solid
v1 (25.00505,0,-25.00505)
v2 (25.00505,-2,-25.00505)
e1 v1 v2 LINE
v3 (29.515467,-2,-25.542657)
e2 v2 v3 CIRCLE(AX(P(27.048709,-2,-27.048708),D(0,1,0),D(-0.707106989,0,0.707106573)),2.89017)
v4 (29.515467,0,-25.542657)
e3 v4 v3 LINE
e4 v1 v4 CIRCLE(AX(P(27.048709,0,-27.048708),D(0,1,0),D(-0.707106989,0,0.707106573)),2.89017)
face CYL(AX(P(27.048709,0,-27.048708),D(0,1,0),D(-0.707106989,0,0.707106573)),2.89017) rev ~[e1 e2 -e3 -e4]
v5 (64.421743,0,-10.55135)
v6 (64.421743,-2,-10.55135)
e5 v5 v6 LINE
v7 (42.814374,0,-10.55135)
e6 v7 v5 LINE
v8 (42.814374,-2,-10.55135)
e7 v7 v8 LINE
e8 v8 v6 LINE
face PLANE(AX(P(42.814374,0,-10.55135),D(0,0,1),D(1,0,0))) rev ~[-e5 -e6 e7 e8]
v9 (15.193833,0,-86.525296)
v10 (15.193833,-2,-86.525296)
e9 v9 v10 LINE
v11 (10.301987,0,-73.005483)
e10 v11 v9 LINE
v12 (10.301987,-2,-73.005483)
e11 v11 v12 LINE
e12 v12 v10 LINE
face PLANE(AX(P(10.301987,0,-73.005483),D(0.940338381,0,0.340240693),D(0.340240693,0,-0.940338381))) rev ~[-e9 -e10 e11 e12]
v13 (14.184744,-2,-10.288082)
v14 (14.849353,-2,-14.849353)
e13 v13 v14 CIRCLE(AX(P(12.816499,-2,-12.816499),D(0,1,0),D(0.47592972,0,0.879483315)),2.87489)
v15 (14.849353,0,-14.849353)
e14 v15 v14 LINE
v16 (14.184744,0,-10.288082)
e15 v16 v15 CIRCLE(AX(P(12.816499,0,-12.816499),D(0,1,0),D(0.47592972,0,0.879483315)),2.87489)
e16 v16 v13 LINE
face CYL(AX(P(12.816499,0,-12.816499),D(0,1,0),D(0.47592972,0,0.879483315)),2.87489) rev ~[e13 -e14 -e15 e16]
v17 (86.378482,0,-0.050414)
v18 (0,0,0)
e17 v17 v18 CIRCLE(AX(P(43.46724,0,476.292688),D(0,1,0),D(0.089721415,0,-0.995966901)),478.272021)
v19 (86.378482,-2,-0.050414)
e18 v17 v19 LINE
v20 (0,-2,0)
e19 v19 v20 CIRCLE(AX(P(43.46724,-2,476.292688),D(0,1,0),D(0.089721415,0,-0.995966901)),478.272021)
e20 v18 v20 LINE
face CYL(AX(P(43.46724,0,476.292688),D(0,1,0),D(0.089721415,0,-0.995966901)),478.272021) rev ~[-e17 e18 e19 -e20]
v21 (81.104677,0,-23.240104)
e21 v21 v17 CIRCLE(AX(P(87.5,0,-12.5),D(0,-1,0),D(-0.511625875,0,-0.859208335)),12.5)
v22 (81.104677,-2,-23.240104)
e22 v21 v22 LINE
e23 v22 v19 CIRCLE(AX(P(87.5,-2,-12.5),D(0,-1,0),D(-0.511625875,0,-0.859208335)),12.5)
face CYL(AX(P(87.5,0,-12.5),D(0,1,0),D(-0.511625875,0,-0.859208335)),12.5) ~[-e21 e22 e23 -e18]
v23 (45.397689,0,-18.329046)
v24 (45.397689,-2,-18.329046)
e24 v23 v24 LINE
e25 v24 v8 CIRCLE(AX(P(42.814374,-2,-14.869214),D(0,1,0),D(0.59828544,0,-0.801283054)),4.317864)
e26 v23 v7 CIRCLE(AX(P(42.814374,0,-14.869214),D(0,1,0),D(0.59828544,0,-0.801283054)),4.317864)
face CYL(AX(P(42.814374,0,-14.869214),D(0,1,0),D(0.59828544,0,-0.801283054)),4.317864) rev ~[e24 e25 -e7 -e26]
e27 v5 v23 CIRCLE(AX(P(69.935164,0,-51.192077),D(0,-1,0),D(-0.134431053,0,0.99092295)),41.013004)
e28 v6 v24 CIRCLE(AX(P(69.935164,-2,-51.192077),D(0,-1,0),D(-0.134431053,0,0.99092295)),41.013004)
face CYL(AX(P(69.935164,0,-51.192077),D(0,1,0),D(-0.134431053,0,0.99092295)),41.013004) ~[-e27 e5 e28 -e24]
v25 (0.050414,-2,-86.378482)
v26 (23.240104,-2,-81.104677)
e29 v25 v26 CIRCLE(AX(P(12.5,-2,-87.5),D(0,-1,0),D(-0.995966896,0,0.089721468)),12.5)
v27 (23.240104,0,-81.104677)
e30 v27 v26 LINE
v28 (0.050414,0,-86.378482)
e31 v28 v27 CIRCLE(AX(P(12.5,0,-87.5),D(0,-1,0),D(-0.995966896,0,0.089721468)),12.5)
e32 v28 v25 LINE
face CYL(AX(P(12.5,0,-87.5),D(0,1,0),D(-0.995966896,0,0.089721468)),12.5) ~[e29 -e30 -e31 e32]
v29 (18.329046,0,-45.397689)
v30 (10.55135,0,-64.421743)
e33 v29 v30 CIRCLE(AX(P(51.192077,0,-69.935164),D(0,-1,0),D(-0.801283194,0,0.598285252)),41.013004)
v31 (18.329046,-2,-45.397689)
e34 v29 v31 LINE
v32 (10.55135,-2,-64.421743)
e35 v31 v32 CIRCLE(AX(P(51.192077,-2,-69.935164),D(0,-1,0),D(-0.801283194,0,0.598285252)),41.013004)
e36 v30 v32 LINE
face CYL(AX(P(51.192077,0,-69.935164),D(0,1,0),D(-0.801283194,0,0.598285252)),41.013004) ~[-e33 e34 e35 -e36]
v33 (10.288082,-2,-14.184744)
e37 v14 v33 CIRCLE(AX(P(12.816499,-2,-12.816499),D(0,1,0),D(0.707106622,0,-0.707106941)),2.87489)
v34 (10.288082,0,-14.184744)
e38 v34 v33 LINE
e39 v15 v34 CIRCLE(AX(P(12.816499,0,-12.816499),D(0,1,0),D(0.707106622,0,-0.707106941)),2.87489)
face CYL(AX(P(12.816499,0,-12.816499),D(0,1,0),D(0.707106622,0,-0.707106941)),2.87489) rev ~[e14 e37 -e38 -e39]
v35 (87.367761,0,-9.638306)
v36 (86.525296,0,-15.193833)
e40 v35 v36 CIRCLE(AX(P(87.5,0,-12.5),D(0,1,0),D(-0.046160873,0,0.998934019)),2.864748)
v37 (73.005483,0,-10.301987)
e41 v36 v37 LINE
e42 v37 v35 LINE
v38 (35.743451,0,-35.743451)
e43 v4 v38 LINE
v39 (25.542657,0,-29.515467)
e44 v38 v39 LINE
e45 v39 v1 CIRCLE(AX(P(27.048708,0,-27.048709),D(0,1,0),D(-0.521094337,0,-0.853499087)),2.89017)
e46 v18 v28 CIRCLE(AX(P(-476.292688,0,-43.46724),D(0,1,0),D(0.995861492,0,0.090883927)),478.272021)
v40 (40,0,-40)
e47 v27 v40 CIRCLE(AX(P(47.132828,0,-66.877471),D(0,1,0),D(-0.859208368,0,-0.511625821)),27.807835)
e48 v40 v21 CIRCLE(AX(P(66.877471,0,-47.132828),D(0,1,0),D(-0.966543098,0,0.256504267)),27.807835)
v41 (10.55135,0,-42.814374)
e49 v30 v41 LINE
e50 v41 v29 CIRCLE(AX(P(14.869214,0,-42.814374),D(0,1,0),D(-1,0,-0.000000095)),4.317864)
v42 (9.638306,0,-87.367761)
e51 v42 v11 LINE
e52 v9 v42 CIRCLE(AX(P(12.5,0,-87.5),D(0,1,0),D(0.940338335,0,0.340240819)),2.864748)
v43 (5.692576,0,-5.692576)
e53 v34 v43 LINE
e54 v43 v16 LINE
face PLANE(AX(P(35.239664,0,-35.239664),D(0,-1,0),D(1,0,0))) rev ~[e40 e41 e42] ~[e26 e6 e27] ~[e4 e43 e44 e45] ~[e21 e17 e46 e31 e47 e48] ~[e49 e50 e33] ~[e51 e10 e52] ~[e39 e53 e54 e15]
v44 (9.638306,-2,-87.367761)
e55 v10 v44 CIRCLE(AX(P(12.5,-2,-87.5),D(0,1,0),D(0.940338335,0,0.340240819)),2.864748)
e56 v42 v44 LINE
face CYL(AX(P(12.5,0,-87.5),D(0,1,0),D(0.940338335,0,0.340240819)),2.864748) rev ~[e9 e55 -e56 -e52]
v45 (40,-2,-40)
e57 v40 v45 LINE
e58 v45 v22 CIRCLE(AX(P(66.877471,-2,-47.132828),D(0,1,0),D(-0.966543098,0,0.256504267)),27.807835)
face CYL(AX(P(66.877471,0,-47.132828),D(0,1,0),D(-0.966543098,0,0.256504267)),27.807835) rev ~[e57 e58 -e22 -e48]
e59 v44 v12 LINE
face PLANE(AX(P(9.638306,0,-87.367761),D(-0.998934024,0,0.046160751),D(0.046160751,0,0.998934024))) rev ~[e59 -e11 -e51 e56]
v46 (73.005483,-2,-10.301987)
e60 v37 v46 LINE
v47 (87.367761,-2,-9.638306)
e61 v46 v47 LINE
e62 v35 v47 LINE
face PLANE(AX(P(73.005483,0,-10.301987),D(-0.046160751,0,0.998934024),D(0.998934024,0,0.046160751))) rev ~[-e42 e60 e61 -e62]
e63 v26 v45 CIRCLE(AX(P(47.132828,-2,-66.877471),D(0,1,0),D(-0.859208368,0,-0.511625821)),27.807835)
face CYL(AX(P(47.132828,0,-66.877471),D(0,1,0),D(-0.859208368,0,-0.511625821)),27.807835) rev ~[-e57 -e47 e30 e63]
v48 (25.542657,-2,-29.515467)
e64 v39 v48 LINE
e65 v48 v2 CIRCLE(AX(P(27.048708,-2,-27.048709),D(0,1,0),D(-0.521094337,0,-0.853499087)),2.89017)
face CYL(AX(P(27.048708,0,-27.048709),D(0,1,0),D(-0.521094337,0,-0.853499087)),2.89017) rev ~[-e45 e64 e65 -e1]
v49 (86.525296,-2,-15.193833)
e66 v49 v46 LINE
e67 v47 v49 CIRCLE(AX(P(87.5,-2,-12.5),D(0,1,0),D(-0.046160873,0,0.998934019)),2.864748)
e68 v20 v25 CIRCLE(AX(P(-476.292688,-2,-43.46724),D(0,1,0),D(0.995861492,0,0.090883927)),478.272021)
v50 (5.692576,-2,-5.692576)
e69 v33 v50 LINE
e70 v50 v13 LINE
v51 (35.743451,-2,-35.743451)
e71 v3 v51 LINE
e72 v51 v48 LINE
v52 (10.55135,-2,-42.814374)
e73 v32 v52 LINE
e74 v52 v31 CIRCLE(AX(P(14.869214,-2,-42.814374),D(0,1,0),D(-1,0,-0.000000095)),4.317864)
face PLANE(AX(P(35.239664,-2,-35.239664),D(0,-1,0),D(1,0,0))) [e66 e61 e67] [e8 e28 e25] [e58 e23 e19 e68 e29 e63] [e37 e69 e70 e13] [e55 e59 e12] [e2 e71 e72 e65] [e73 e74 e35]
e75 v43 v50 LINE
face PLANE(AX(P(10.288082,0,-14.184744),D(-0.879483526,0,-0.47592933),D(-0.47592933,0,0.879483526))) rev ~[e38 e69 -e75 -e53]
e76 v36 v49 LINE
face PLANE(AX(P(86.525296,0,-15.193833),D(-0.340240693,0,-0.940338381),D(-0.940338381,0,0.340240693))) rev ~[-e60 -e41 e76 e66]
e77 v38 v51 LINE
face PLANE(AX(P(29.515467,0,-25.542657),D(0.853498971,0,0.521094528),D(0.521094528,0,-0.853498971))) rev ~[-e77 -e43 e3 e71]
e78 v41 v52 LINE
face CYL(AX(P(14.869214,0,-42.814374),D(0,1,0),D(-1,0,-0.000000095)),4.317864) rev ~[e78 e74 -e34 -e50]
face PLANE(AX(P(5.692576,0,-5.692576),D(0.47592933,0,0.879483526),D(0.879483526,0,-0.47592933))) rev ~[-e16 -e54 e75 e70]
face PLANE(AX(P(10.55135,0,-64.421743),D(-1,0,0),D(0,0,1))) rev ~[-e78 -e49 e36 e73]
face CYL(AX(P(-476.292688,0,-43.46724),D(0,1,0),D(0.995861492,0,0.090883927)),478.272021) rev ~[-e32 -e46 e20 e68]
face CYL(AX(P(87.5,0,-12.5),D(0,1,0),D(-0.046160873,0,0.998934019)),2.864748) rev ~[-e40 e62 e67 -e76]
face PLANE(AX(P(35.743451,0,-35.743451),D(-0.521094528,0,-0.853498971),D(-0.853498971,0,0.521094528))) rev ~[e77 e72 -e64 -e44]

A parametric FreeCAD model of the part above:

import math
import FreeCAD as App
import Part
import Sketcher

V = App.Vector

doc = App.newDocument("Part")
body = doc.addObject("PartDesign::Body", "Body")

# Sketch on XZ plane
sketch1 = doc.addObject("Sketcher::SketchObject", "Sketch")
body.addObject(sketch1)
sketch1.AttachmentSupport = (doc.XZ_Plane, [""])
sketch1.MapMode = "FlatFace"
sketch1.addGeometry(Part.ArcOfCircle(Part.Circle(V(-476.292688, -43.46724, 0), V(0, 0, 1), 478.272021), math.radians(-5.147581), math.radians(5.214461)), False)
sketch1.addGeometry(Part.ArcOfCircle(Part.Circle(V(12.5, -87.5, 0), V(0, 0, 1), 12.5), math.radians(174.852416), math.radians(390.772189)), False)
sketch1.addGeometry(Part.ArcOfCircle(Part.Circle(V(47.132828, -66.877471, 0), V(0, 0, 1), 27.807835), math.radians(104.862738), math.radians(210.772186)), False)
sketch1.addGeometry(Part.ArcOfCircle(Part.Circle(V(66.877471, -47.132828, 0), V(0, 0, 1), 27.807835), math.radians(59.227814), math.radians(165.137262)), False)
sketch1.addGeometry(Part.ArcOfCircle(Part.Circle(V(87.5, -12.5, 0), V(0, 0, 1), 12.5), math.radians(-120.772189), math.radians(95.147584)), False)
sketch1.addGeometry(Part.ArcOfCircle(Part.Circle(V(43.46724, 476.292688, 0), V(0, 0, 1), 478.272021), math.radians(-95.214461), math.radians(-84.852419)), False)
sketch1.addGeometry(Part.LineSegment(V(10.301987, -73.005483, 0), V(15.193833, -86.525296, 0)), False)
sketch1.addGeometry(Part.ArcOfCircle(Part.Circle(V(12.5, -87.5, 0), V(0, 0, 1), 2.864748), math.radians(177.354237), math.radians(379.891547)), False)
sketch1.addGeometry(Part.LineSegment(V(9.638306, -87.367761, 0), V(10.301987, -73.005483, 0)), False)
sketch1.addGeometry(Part.LineSegment(V(10.55135, -64.421743, 0), V(10.55135, -42.814374, 0)), False)
sketch1.addGeometry(Part.ArcOfCircle(Part.Circle(V(14.869214, -42.814374, 0), V(0, 0, 1), 4.317864), math.radians(-36.7472), math.radians(180.000005)), False)
sketch1.addGeometry(Part.ArcOfCircle(Part.Circle(V(51.192077, -69.935164, 0), V(0, 0, 1), 41.013004), math.radians(143.252814), math.radians(172.274278)), False)
sketch1.addGeometry(Part.LineSegment(V(35.743451, -35.743451, 0), V(25.542657, -29.515467, 0)), False)
sketch1.addGeometry(Part.ArcOfCircle(Part.Circle(V(27.048708, -27.048709, 0), V(0, 0, 1), 2.89017), math.radians(134.999983), math.radians(238.594314)), False)
sketch1.addGeometry(Part.ArcOfCircle(Part.Circle(V(27.048709, -27.048708, 0), V(0, 0, 1), 2.89017), math.radians(31.405686), math.radians(135.000017)), False)
sketch1.addGeometry(Part.LineSegment(V(29.515467, -25.542657, 0), V(35.743451, -35.743451, 0)), False)
sketch1.addGeometry(Part.ArcOfCircle(Part.Circle(V(12.816499, -12.816499, 0), V(0, 0, 1), 2.87489), math.radians(-44.999987), math.radians(61.580099)), False)
sketch1.addGeometry(Part.ArcOfCircle(Part.Circle(V(12.816499, -12.816499, 0), V(0, 0, 1), 2.87489), math.radians(-151.580099), math.radians(-45.000013)), False)
sketch1.addGeometry(Part.LineSegment(V(10.288082, -14.184744, 0), V(5.692576, -5.692576, 0)), False)
sketch1.addGeometry(Part.LineSegment(V(5.692576, -5.692576, 0), V(14.184744, -10.288082, 0)), False)
sketch1.addGeometry(Part.LineSegment(V(42.814374, -10.55135, 0), V(64.421743, -10.55135, 0)), False)
sketch1.addGeometry(Part.ArcOfCircle(Part.Circle(V(69.935164, -51.192077, 0), V(0, 0, 1), 41.013004), math.radians(97.725722), math.radians(126.747186)), False)
sketch1.addGeometry(Part.ArcOfCircle(Part.Circle(V(42.814374, -14.869214, 0), V(0, 0, 1), 4.317864), math.radians(89.999995), math.radians(306.7472)), False)
sketch1.addGeometry(Part.ArcOfCircle(Part.Circle(V(87.5, -12.5, 0), V(0, 0, 1), 2.864748), math.radians(-109.891547), math.radians(92.645763)), False)
sketch1.addGeometry(Part.LineSegment(V(86.525296, -15.193833, 0), V(73.005483, -10.301987, 0)), False)
sketch1.addGeometry(Part.LineSegment(V(73.005483, -10.301987, 0), V(87.367761, -9.638306, 0)), False)
sketch1.addConstraint(Sketcher.Constraint("Coincident", 0, 1, 1, 1))
sketch1.addConstraint(Sketcher.Constraint("Coincident", 1, 2, 2, 2))
sketch1.addConstraint(Sketcher.Constraint("Coincident", 2, 1, 3, 2))
sketch1.addConstraint(Sketcher.Constraint("Coincident", 3, 1, 4, 1))
sketch1.addConstraint(Sketcher.Constraint("Coincident", 4, 2, 5, 2))
sketch1.addConstraint(Sketcher.Constraint("Coincident", 5, 1, 0, 2))
sketch1.addConstraint(Sketcher.Constraint("Coincident", 6, 2, 7, 2))
sketch1.addConstraint(Sketcher.Constraint("Coincident", 7, 1, 8, 1))
sketch1.addConstraint(Sketcher.Constraint("Coincident", 8, 2, 6, 1))
sketch1.addConstraint(Sketcher.Constraint("Coincident", 9, 2, 10, 2))
sketch1.addConstraint(Sketcher.Constraint("Coincident", 10, 1, 11, 1))
sketch1.addConstraint(Sketcher.Constraint("Coincident", 11, 2, 9, 1))
sketch1.addConstraint(Sketcher.Constraint("Coincident", 12, 2, 13, 2))
sketch1.addConstraint(Sketcher.Constraint("Coincident", 13, 1, 14, 2))
sketch1.addConstraint(Sketcher.Constraint("Coincident", 14, 1, 15, 1))
sketch1.addConstraint(Sketcher.Constraint("Coincident", 15, 2, 12, 1))
sketch1.addConstraint(Sketcher.Constraint("Coincident", 16, 1, 17, 2))
sketch1.addConstraint(Sketcher.Constraint("Coincident", 17, 1, 18, 1))
sketch1.addConstraint(Sketcher.Constraint("Coincident", 18, 2, 19, 1))
sketch1.addConstraint(Sketcher.Constraint("Coincident", 19, 2, 16, 2))
sketch1.addConstraint(Sketcher.Constraint("Coincident", 20, 2, 21, 1))
sketch1.addConstraint(Sketcher.Constraint("Coincident", 21, 2, 22, 2))
sketch1.addConstraint(Sketcher.Constraint("Coincident", 22, 1, 20, 1))
sketch1.addConstraint(Sketcher.Constraint("Coincident", 23, 1, 24, 1))
sketch1.addConstraint(Sketcher.Constraint("Coincident", 24, 2, 25, 1))
sketch1.addConstraint(Sketcher.Constraint("Coincident", 25, 2, 23, 2))
sketch1.addConstraint(Sketcher.Constraint("Vertical", 9))
sketch1.addConstraint(Sketcher.Constraint("Horizontal", 20))
sketch1.addConstraint(Sketcher.Constraint("Coincident", 5, 1, -1, 1))
sketch1.addConstraint(Sketcher.Constraint("Coincident", 7, 3, 1, 3))
sketch1.addConstraint(Sketcher.Constraint("Coincident", 14, 3, 13, 3))
sketch1.addConstraint(Sketcher.Constraint("Coincident", 17, 3, 16, 3))
sketch1.addConstraint(Sketcher.Constraint("Coincident", 23, 3, 4, 3))
sketch1.addConstraint(Sketcher.Constraint("Radius", 1, 12.5))
sketch1.addConstraint(Sketcher.Constraint("Radius", 4, 12.5))
sketch1.addConstraint(Sketcher.Constraint("DistanceX", -1, 1, 2, 1, 40.0))
sketch1.addConstraint(Sketcher.Constraint("DistanceY", 2, 1, -1, 1, 40.0))
sketch1.addConstraint(Sketcher.Constraint("DistanceX", 1, 3, 4, 3, 75.0))
sketch1.addConstraint(Sketcher.Constraint("DistanceY", 1, 3, 4, 3, 75.0))
sketch1.addConstraint(Sketcher.Constraint("DistanceX", -1, 1, 1, 3, 12.5))
sketch1.addConstraint(Sketcher.Constraint("DistanceY", 1, 3, -1, 1, 87.5))
sketch1.addConstraint(Sketcher.Constraint("Radius", 0, 478.272021))
sketch1.addConstraint(Sketcher.Constraint("Radius", 5, 478.272021))
sketch1.addConstraint(Sketcher.Constraint("Radius", 7, 2.864748))
sketch1.addConstraint(Sketcher.Constraint("Radius", 13, 2.89017))
sketch1.addConstraint(Sketcher.Constraint("Radius", 16, 2.87489))
sketch1.addConstraint(Sketcher.Constraint("Radius", 23, 2.864748))
sketch1.addConstraint(Sketcher.Constraint("Radius", 2, 27.807835))
sketch1.addConstraint(Sketcher.Constraint("Radius", 3, 27.807835))
sketch1.addConstraint(Sketcher.Constraint("Radius", 10, 4.317864))
sketch1.addConstraint(Sketcher.Constraint("Radius", 11, 41.013004))
sketch1.addConstraint(Sketcher.Constraint("Radius", 21, 41.013004))
sketch1.addConstraint(Sketcher.Constraint("Radius", 22, 4.317864))
sketch1.addConstraint(Sketcher.Constraint("DistanceX", 20, 1, 20, 2, 21.607369))
sketch1.addConstraint(Sketcher.Constraint("DistanceY", 9, 1, 9, 2, 21.607369))
sketch1.addConstraint(Sketcher.Constraint("DistanceX", -1, 1, 16, 3, 12.816499))
sketch1.addConstraint(Sketcher.Constraint("DistanceY", 16, 3, -1, 1, 12.816499))
sketch1.addConstraint(Sketcher.Constraint("DistanceX", 0, 1, 10, 3, 14.8188))
sketch1.addConstraint(Sketcher.Constraint("DistanceY", 22, 3, 4, 2, 14.8188))
sketch1.addConstraint(Sketcher.Constraint("DistanceX", -1, 1, 13, 3, 27.048708))
sketch1.addConstraint(Sketcher.Constraint("DistanceY", 13, 3, -1, 1, 27.048709))
sketch1.addConstraint(Sketcher.Constraint("DistanceY", 0, 1, -1, 1, 86.378482))
sketch1.addConstraint(Sketcher.Constraint("DistanceY", 7, 1, -1, 1, 87.367761))
sketch1.addConstraint(Sketcher.Constraint("DistanceY", 10, 1, -1, 1, 45.397689))
sketch1.addConstraint(Sketcher.Constraint("DistanceX", -1, 1, 13, 1, 25.00505))
sketch1.addConstraint(Sketcher.Constraint("DistanceX", -1, 1, 15, 2, 35.743451))
sketch1.addConstraint(Sketcher.Constraint("DistanceY", 15, 2, -1, 1, 35.743451))
sketch1.addConstraint(Sketcher.Constraint("DistanceX", -1, 1, 17, 1, 10.288082))
sketch1.addConstraint(Sketcher.Constraint("DistanceY", 19, 2, -1, 1, 10.288082))
sketch1.addConstraint(Sketcher.Constraint("DistanceY", 20, 2, -1, 1, 10.55135))
sketch1.addConstraint(Sketcher.Constraint("DistanceX", -1, 1, 21, 2, 45.397689))
sketch1.addConstraint(Sketcher.Constraint("DistanceX", -1, 1, 25, 2, 87.367761))
sketch1.addConstraint(Sketcher.Constraint("DistanceX", 2, 3, 11, 3, 4.059248))
sketch1.addConstraint(Sketcher.Constraint("DistanceY", 21, 3, 3, 3, 4.059248))
sketch1.addConstraint(Sketcher.Constraint("DistanceX", 10, 3, 22, 3, 27.945159))
sketch1.addConstraint(Sketcher.Constraint("DistanceY", 10, 3, 22, 3, 27.945159))
sketch1.addConstraint(Sketcher.Constraint("DistanceX", 0, 1, 1, 2, 23.18969))
sketch1.addConstraint(Sketcher.Constraint("DistanceY", 3, 1, 22, 3, 8.37089))
sketch1.addConstraint(Sketcher.Constraint("DistanceX", 6, 2, 1, 2, 8.046271))
sketch1.addConstraint(Sketcher.Constraint("DistanceX", 7, 1, 8, 2, 0.663681))
sketch1.addConstraint(Sketcher.Constraint("DistanceY", 7, 1, 8, 2, 14.362278))
sketch1.addConstraint(Sketcher.Constraint("DistanceX", 12, 2, 13, 3, 1.506051))
sketch1.addConstraint(Sketcher.Constraint("DistanceY", 14, 3, 14, 1, 1.506051))
sketch1.addConstraint(Sketcher.Constraint("DistanceX", 17, 1, 16, 1, 4.561271))
sketch1.addConstraint(Sketcher.Constraint("DistanceY", 17, 1, 18, 2, 8.492168))
sketch1.addConstraint(Sketcher.Constraint("DistanceX", 3, 1, 23, 1, 5.420619))
sketch1.addConstraint(Sketcher.Constraint("DistanceX", 20, 2, 24, 2, 8.58374))
sketch1.addConstraint(Sketcher.Constraint("DistanceY", 24, 2, 25, 2, 0.663681))
sketch1.addConstraint(Sketcher.Constraint("Distance", 18, 9.655858))
pad1 = doc.addObject("PartDesign::Pad", "Pad")
body.addObject(pad1)
pad1.Profile = sketch1
pad1.Length = 2

doc.recompute()
